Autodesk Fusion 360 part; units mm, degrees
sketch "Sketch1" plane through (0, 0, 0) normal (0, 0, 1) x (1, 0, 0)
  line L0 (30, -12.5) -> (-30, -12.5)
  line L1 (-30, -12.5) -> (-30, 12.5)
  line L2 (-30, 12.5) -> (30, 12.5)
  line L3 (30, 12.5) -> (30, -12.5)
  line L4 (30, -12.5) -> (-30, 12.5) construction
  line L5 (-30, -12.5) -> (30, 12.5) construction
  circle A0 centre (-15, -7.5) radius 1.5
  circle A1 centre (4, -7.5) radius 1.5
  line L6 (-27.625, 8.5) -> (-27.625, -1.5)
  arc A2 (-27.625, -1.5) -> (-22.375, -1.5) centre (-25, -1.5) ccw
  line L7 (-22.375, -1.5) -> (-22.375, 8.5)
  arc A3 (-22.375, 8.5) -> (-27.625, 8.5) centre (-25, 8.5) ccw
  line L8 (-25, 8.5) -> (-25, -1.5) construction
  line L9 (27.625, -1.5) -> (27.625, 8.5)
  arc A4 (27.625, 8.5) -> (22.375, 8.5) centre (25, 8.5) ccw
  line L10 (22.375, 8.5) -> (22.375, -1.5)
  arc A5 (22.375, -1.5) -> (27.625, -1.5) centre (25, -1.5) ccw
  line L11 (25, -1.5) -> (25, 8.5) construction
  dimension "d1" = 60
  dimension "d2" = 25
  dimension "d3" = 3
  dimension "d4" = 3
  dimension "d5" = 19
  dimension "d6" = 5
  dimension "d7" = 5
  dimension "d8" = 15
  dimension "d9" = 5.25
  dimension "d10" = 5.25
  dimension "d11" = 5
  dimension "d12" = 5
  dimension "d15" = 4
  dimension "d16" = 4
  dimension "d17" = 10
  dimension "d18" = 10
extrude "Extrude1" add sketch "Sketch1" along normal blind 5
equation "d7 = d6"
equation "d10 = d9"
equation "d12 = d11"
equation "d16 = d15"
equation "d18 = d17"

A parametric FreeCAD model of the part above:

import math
import FreeCAD as App
import Part
import Sketcher
Q = App.Units.Quantity


def add_polygon(sketch, points):
    """Adds a closed chain of lines whose ends are joined by coincident constraints."""
    first, n = sketch.GeometryCount, len(points)
    for a, b in zip(points, points[1:] + points[:1]):
        sketch.addGeometry(Part.LineSegment(App.Vector(*a, 0), App.Vector(*b, 0)), False)
    for i in range(n):
        sketch.addConstraint(Sketcher.Constraint("Coincident", first + i, 2, first + (i + 1) % n, 1))

doc = App.newDocument("Part")
params = doc.addObject("Spreadsheet::Sheet", "Params")
for row, (alias, value) in enumerate([
    ("sketch1_diameter", "3 mm"),
    ("sketch1_width", "60 mm"),
    ("sketch1_height", "25 mm"),
    ("sketch1_height2", "10 mm"),
    ("pad1_length", "5 mm"),
], start=1):
    params.set(f"A{row}", alias)
    params.set(f"B{row}", "=" + value)
    params.setAlias(f"B{row}", alias)

body = doc.addObject("PartDesign::Body", "Body")

sketch1 = doc.addObject("Sketcher::SketchObject", "Sketch")
body.addObject(sketch1)
sketch1.AttachmentSupport = (doc.XY_Plane, [""])
sketch1.MapMode = "FlatFace"
add_polygon(sketch1, [(-30, -12.5), (30, -12.5), (30, 12.5), (-30, 12.5)])
sketch1.addGeometry(Part.Circle(App.Vector(-15, -7.5, 0), App.Vector(0, 0, 1), 1.5), False)
sketch1.addGeometry(Part.Circle(App.Vector(4, -7.5, 0), App.Vector(0, 0, 1), 1.5), False)
sketch1.addGeometry(Part.LineSegment(App.Vector(-27.625, -1.5, 0), App.Vector(-27.625, 8.5, 0)), False)
sketch1.addGeometry(Part.ArcOfCircle(Part.Circle(App.Vector(-25, 8.5, 0), App.Vector(0, 0, 1), 2.625), math.radians(0), math.radians(180)), False)
sketch1.addGeometry(Part.LineSegment(App.Vector(-22.375, 8.5, 0), App.Vector(-22.375, -1.5, 0)), False)
sketch1.addGeometry(Part.ArcOfCircle(Part.Circle(App.Vector(-25, -1.5, 0), App.Vector(0, 0, 1), 2.625), math.radians(180), math.radians(360)), False)
sketch1.addGeometry(Part.LineSegment(App.Vector(27.625, 8.5, 0), App.Vector(27.625, -1.5, 0)), False)
sketch1.addGeometry(Part.ArcOfCircle(Part.Circle(App.Vector(25, -1.5, 0), App.Vector(0, 0, 1), 2.625), math.radians(180), math.radians(360)), False)
sketch1.addGeometry(Part.LineSegment(App.Vector(22.375, -1.5, 0), App.Vector(22.375, 8.5, 0)), False)
sketch1.addGeometry(Part.ArcOfCircle(Part.Circle(App.Vector(25, 8.5, 0), App.Vector(0, 0, 1), 2.625), math.radians(0), math.radians(180)), False)
sketch1.addConstraint(Sketcher.Constraint("Tangent", 6, 2, 7, 2))
sketch1.addConstraint(Sketcher.Constraint("Tangent", 7, 1, 8, 1))
sketch1.addConstraint(Sketcher.Constraint("Tangent", 8, 2, 9, 2))
sketch1.addConstraint(Sketcher.Constraint("Tangent", 9, 1, 6, 1))
sketch1.addConstraint(Sketcher.Constraint("Tangent", 10, 2, 11, 2))
sketch1.addConstraint(Sketcher.Constraint("Tangent", 11, 1, 12, 1))
sketch1.addConstraint(Sketcher.Constraint("Tangent", 12, 2, 13, 2))
sketch1.addConstraint(Sketcher.Constraint("Tangent", 13, 1, 10, 1))
sketch1.addConstraint(Sketcher.Constraint("Horizontal", 0))
sketch1.addConstraint(Sketcher.Constraint("Vertical", 1))
sketch1.addConstraint(Sketcher.Constraint("Horizontal", 2))
sketch1.addConstraint(Sketcher.Constraint("Vertical", 3))
sketch1.addConstraint(Sketcher.Constraint("Vertical", 6))
sketch1.addConstraint(Sketcher.Constraint("Vertical", 8))
sketch1.addConstraint(Sketcher.Constraint("Vertical", 10))
sketch1.addConstraint(Sketcher.Constraint("Vertical", 12))
sketch1.addConstraint(Sketcher.Constraint("Equal", 4, 5))
sketch1.addConstraint(Sketcher.Constraint("Equal", 9, 11))
sketch1.addConstraint(Sketcher.Constraint("Symmetric", 0, 2, 2, 2, -1, 1))
sketch1.addConstraint(Sketcher.Constraint("Symmetric", 9, 3, 11, 3, -2))
sketch1.addConstraint(Sketcher.Constraint("Horizontal", 4, 3, 5, 3))
sketch1.addConstraint(Sketcher.Constraint("Horizontal", 7, 3, 13, 3))
sketch1.addConstraint(Sketcher.Constraint("Diameter", 4, Q("3 mm")))
sketch1.addConstraint(Sketcher.Constraint("DistanceX", 0, 1, 0, 2, Q("60 mm")))
sketch1.addConstraint(Sketcher.Constraint("DistanceY", 1, 1, 1, 2, Q("25 mm")))
sketch1.addConstraint(Sketcher.Constraint("DistanceY", 6, 1, 6, 2, Q("10 mm")))
sketch1.addConstraint(Sketcher.Constraint("DistanceX", 4, 3, -1, 1, Q("15 mm")))
sketch1.addConstraint(Sketcher.Constraint("DistanceX", -1, 1, 5, 3, Q("4 mm")))
sketch1.addConstraint(Sketcher.Constraint("DistanceX", 7, 3, -1, 1, Q("25 mm")))
sketch1.addConstraint(Sketcher.Constraint("Radius", 7, Q("2.625 mm")))
sketch1.addConstraint(Sketcher.Constraint("DistanceY", 0, 2, 5, 3, Q("5 mm")))
sketch1.addConstraint(Sketcher.Constraint("DistanceY", 13, 3, 1, 2, Q("4 mm")))
sketch1.setExpression("Constraints[26]", "Params.sketch1_diameter")
sketch1.setExpression("Constraints[27]", "Params.sketch1_width")
sketch1.setExpression("Constraints[28]", "Params.sketch1_height")
sketch1.setExpression("Constraints[29]", "Params.sketch1_height2")
pad1 = doc.addObject("PartDesign::Pad", "Pad")
body.addObject(pad1)
pad1.Profile = sketch1
pad1.setExpression("Length", "Params.pad1_length")

doc.recompute()
